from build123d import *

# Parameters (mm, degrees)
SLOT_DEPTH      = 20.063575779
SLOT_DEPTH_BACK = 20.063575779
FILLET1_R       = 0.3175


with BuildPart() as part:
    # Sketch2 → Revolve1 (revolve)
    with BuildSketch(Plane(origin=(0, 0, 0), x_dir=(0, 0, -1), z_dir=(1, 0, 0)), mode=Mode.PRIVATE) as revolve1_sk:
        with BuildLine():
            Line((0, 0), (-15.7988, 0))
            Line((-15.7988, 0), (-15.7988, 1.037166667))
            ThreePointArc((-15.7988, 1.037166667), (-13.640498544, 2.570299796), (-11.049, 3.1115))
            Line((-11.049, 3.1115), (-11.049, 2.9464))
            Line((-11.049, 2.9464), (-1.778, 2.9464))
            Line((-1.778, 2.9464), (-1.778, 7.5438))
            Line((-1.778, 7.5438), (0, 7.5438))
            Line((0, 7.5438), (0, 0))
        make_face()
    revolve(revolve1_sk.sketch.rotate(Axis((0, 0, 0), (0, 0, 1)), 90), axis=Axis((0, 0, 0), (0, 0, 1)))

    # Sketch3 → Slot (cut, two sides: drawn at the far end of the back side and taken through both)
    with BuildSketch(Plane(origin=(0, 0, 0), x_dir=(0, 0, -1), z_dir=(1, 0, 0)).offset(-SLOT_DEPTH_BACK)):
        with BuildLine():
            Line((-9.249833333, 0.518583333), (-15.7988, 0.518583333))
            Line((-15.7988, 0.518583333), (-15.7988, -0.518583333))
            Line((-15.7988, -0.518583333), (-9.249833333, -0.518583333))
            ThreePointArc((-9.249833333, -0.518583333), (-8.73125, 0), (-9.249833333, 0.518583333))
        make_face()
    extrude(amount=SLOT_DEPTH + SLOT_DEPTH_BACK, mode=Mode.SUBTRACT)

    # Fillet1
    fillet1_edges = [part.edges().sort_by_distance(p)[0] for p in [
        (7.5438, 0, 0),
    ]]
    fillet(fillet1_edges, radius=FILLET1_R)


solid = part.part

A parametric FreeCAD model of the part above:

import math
import FreeCAD as App
import Part
import Sketcher
Q = App.Units.Quantity


def edges_at(feature, points):
    """Names of the edges that pass closest to the given points."""
    edges = feature.Shape.Edges
    near = lambda p: min(range(len(edges)), key=lambda i: edges[i].distToShape(Part.Vertex(*p))[0])
    return sorted({f"Edge{near(p) + 1}" for p in points})

doc = App.newDocument("Part")
params = doc.addObject("Spreadsheet::Sheet", "Params")
for row, (alias, value) in enumerate([
    ("sketch1_height", "0.07 in"),
    ("sketch1_width", "0.297 in"),
    ("sketch1_width2", "0.181 in"),
    ("sketch1_height2", "0.622 in"),
    ("sketch1_height3", "0.365 in"),
    ("revolution_angle", "360 deg"),
    ("fillet_radius", "0.0125 in"),
], start=1):
    params.set(f"A{row}", alias)
    params.set(f"B{row}", "=" + value)
    params.setAlias(f"B{row}", alias)

body = doc.addObject("PartDesign::Body", "Body")

# Sketch on YZ plane
sketch1 = body.newObject("Sketcher::SketchObject", "Sketch")
sketch1.AttachmentSupport = (doc.getObject("YZ_Plane"), [""])
sketch1.MapMode = "FlatFace"
sketch1.addGeometry(Part.LineSegment(App.Vector(0, 15.7988, 0), App.Vector(0, 0, 0)), False)
sketch1.addGeometry(Part.LineSegment(App.Vector(0, 0, 0), App.Vector(7.5438, 0, 0)), False)
sketch1.addGeometry(Part.LineSegment(App.Vector(7.5438, 0, 0), App.Vector(7.5438, 1.778, 0)), False)
sketch1.addGeometry(Part.LineSegment(App.Vector(7.5438, 1.778, 0), App.Vector(2.9464, 1.778, 0)), False)
sketch1.addGeometry(Part.LineSegment(App.Vector(2.9464, 1.778, 0), App.Vector(2.9464, 11.049, 0)), False)
sketch1.addGeometry(Part.LineSegment(App.Vector(2.9464, 11.049, 0), App.Vector(3.1115, 11.049, 0)), False)
sketch1.addGeometry(Part.ArcOfCircle(Part.Circle(App.Vector(-3.363703, 11.049, 0), App.Vector(0, 0, 1), 6.475203), math.radians(0), math.radians(47.183726)), False)
sketch1.addGeometry(Part.LineSegment(App.Vector(1.037167, 15.7988, 0), App.Vector(0, 15.7988, 0)), False)
sketch1.addConstraint(Sketcher.Constraint("Coincident", 0, 2, 1, 1))
sketch1.addConstraint(Sketcher.Constraint("Coincident", 1, 2, 2, 1))
sketch1.addConstraint(Sketcher.Constraint("Coincident", 2, 2, 3, 1))
sketch1.addConstraint(Sketcher.Constraint("Coincident", 3, 2, 4, 1))
sketch1.addConstraint(Sketcher.Constraint("Coincident", 4, 2, 5, 1))
sketch1.addConstraint(Sketcher.Constraint("Coincident", 5, 2, 6, 1))
sketch1.addConstraint(Sketcher.Constraint("Coincident", 6, 2, 7, 1))
sketch1.addConstraint(Sketcher.Constraint("Coincident", 7, 2, 0, 1))
sketch1.addConstraint(Sketcher.Constraint("Vertical", 0))
sketch1.addConstraint(Sketcher.Constraint("Horizontal", 1))
sketch1.addConstraint(Sketcher.Constraint("Vertical", 2))
sketch1.addConstraint(Sketcher.Constraint("Horizontal", 3))
sketch1.addConstraint(Sketcher.Constraint("Vertical", 4))
sketch1.addConstraint(Sketcher.Constraint("Horizontal", 5))
sketch1.addConstraint(Sketcher.Constraint("Horizontal", 7))
sketch1.addConstraint(Sketcher.Constraint("Coincident", 0, 2, -1, 1))
sketch1.addConstraint(Sketcher.Constraint("Horizontal", 6, 3, 4, 2))
sketch1.addConstraint(Sketcher.Constraint("DistanceY", 2, 1, 2, 2, Q("0.07 in")))
sketch1.addConstraint(Sketcher.Constraint("DistanceX", 1, 1, 1, 2, Q("0.297 in")))
sketch1.addConstraint(Sketcher.Constraint("DistanceX", 3, 2, 3, 1, Q("0.181 in")))
sketch1.addConstraint(Sketcher.Constraint("DistanceY", 0, 2, 0, 1, Q("0.622 in")))
sketch1.addConstraint(Sketcher.Constraint("DistanceY", 4, 1, 4, 2, Q("0.365 in")))
sketch1.addConstraint(Sketcher.Constraint("DistanceX", 5, 1, 5, 2, Q("0.0065 in")))
sketch1.addConstraint(Sketcher.Constraint("Radius", 6, 6.475203))
sketch1.setExpression("Constraints[17]", "Params.sketch1_height")
sketch1.setExpression("Constraints[18]", "Params.sketch1_width")
sketch1.setExpression("Constraints[19]", "Params.sketch1_width2")
sketch1.setExpression("Constraints[20]", "Params.sketch1_height2")
sketch1.setExpression("Constraints[21]", "Params.sketch1_height3")
revolution = body.newObject("PartDesign::Revolution", "Revolution")
revolution.Profile = sketch1
revolution.ReferenceAxis = (sketch1, ["V_Axis"])
revolution.setExpression("Angle", "Params.revolution_angle")

# Sketch on YZ plane
sketch2 = body.newObject("Sketcher::SketchObject", "Sketch001")
sketch2.AttachmentSupport = (doc.getObject("YZ_Plane"), [""])
sketch2.MapMode = "FlatFace"
sketch2.addGeometry(Part.LineSegment(App.Vector(0.518583, 9.249833, 0), App.Vector(0.518583, 15.7988, 0)), False)
sketch2.addGeometry(Part.LineSegment(App.Vector(0.518583, 15.7988, 0), App.Vector(-0.518583, 15.7988, 0)), False)
sketch2.addGeometry(Part.LineSegment(App.Vector(-0.518583, 15.7988, 0), App.Vector(-0.518583, 9.249833, 0)), False)
sketch2.addGeometry(Part.ArcOfCircle(Part.Circle(App.Vector(0, 9.249833, 0), App.Vector(0, 0, 1), 0.518583), math.radians(180), math.radians(360)), False)
sketch2.addConstraint(Sketcher.Constraint("Coincident", 0, 2, 1, 1))
sketch2.addConstraint(Sketcher.Constraint("Coincident", 1, 2, 2, 1))
sketch2.addConstraint(Sketcher.Constraint("Tangent", 2, 2, 3, 1))
sketch2.addConstraint(Sketcher.Constraint("Tangent", 3, 2, 0, 1))
sketch2.addConstraint(Sketcher.Constraint("Vertical", 0))
sketch2.addConstraint(Sketcher.Constraint("Horizontal", 1))
sketch2.addConstraint(Sketcher.Constraint("Vertical", 2))
sketch2.addConstraint(Sketcher.Constraint("PointOnObject", 3, 3, -2))
sketch2.addConstraint(Sketcher.Constraint("DistanceY", -1, 1, 0, 2, Q("0.622 in")))
sketch2.addConstraint(Sketcher.Constraint("Radius", 3, 0.518583))
sketch2.addConstraint(Sketcher.Constraint("DistanceY", 0, 1, 0, 2, 6.548967))
pocket1 = body.newObject("PartDesign::Pocket", "Pocket")
pocket1.Profile = sketch2
pocket1.Type = "ThroughAll"
pocket1.Midplane = True
doc.recompute()

fillet = body.newObject("PartDesign::Fillet", "Fillet")
fillet.Base = (pocket1, edges_at(pocket1, [(7.544, 0, 0)]))
fillet.setExpression("Radius", "Params.fillet_radius")

doc.recompute()
